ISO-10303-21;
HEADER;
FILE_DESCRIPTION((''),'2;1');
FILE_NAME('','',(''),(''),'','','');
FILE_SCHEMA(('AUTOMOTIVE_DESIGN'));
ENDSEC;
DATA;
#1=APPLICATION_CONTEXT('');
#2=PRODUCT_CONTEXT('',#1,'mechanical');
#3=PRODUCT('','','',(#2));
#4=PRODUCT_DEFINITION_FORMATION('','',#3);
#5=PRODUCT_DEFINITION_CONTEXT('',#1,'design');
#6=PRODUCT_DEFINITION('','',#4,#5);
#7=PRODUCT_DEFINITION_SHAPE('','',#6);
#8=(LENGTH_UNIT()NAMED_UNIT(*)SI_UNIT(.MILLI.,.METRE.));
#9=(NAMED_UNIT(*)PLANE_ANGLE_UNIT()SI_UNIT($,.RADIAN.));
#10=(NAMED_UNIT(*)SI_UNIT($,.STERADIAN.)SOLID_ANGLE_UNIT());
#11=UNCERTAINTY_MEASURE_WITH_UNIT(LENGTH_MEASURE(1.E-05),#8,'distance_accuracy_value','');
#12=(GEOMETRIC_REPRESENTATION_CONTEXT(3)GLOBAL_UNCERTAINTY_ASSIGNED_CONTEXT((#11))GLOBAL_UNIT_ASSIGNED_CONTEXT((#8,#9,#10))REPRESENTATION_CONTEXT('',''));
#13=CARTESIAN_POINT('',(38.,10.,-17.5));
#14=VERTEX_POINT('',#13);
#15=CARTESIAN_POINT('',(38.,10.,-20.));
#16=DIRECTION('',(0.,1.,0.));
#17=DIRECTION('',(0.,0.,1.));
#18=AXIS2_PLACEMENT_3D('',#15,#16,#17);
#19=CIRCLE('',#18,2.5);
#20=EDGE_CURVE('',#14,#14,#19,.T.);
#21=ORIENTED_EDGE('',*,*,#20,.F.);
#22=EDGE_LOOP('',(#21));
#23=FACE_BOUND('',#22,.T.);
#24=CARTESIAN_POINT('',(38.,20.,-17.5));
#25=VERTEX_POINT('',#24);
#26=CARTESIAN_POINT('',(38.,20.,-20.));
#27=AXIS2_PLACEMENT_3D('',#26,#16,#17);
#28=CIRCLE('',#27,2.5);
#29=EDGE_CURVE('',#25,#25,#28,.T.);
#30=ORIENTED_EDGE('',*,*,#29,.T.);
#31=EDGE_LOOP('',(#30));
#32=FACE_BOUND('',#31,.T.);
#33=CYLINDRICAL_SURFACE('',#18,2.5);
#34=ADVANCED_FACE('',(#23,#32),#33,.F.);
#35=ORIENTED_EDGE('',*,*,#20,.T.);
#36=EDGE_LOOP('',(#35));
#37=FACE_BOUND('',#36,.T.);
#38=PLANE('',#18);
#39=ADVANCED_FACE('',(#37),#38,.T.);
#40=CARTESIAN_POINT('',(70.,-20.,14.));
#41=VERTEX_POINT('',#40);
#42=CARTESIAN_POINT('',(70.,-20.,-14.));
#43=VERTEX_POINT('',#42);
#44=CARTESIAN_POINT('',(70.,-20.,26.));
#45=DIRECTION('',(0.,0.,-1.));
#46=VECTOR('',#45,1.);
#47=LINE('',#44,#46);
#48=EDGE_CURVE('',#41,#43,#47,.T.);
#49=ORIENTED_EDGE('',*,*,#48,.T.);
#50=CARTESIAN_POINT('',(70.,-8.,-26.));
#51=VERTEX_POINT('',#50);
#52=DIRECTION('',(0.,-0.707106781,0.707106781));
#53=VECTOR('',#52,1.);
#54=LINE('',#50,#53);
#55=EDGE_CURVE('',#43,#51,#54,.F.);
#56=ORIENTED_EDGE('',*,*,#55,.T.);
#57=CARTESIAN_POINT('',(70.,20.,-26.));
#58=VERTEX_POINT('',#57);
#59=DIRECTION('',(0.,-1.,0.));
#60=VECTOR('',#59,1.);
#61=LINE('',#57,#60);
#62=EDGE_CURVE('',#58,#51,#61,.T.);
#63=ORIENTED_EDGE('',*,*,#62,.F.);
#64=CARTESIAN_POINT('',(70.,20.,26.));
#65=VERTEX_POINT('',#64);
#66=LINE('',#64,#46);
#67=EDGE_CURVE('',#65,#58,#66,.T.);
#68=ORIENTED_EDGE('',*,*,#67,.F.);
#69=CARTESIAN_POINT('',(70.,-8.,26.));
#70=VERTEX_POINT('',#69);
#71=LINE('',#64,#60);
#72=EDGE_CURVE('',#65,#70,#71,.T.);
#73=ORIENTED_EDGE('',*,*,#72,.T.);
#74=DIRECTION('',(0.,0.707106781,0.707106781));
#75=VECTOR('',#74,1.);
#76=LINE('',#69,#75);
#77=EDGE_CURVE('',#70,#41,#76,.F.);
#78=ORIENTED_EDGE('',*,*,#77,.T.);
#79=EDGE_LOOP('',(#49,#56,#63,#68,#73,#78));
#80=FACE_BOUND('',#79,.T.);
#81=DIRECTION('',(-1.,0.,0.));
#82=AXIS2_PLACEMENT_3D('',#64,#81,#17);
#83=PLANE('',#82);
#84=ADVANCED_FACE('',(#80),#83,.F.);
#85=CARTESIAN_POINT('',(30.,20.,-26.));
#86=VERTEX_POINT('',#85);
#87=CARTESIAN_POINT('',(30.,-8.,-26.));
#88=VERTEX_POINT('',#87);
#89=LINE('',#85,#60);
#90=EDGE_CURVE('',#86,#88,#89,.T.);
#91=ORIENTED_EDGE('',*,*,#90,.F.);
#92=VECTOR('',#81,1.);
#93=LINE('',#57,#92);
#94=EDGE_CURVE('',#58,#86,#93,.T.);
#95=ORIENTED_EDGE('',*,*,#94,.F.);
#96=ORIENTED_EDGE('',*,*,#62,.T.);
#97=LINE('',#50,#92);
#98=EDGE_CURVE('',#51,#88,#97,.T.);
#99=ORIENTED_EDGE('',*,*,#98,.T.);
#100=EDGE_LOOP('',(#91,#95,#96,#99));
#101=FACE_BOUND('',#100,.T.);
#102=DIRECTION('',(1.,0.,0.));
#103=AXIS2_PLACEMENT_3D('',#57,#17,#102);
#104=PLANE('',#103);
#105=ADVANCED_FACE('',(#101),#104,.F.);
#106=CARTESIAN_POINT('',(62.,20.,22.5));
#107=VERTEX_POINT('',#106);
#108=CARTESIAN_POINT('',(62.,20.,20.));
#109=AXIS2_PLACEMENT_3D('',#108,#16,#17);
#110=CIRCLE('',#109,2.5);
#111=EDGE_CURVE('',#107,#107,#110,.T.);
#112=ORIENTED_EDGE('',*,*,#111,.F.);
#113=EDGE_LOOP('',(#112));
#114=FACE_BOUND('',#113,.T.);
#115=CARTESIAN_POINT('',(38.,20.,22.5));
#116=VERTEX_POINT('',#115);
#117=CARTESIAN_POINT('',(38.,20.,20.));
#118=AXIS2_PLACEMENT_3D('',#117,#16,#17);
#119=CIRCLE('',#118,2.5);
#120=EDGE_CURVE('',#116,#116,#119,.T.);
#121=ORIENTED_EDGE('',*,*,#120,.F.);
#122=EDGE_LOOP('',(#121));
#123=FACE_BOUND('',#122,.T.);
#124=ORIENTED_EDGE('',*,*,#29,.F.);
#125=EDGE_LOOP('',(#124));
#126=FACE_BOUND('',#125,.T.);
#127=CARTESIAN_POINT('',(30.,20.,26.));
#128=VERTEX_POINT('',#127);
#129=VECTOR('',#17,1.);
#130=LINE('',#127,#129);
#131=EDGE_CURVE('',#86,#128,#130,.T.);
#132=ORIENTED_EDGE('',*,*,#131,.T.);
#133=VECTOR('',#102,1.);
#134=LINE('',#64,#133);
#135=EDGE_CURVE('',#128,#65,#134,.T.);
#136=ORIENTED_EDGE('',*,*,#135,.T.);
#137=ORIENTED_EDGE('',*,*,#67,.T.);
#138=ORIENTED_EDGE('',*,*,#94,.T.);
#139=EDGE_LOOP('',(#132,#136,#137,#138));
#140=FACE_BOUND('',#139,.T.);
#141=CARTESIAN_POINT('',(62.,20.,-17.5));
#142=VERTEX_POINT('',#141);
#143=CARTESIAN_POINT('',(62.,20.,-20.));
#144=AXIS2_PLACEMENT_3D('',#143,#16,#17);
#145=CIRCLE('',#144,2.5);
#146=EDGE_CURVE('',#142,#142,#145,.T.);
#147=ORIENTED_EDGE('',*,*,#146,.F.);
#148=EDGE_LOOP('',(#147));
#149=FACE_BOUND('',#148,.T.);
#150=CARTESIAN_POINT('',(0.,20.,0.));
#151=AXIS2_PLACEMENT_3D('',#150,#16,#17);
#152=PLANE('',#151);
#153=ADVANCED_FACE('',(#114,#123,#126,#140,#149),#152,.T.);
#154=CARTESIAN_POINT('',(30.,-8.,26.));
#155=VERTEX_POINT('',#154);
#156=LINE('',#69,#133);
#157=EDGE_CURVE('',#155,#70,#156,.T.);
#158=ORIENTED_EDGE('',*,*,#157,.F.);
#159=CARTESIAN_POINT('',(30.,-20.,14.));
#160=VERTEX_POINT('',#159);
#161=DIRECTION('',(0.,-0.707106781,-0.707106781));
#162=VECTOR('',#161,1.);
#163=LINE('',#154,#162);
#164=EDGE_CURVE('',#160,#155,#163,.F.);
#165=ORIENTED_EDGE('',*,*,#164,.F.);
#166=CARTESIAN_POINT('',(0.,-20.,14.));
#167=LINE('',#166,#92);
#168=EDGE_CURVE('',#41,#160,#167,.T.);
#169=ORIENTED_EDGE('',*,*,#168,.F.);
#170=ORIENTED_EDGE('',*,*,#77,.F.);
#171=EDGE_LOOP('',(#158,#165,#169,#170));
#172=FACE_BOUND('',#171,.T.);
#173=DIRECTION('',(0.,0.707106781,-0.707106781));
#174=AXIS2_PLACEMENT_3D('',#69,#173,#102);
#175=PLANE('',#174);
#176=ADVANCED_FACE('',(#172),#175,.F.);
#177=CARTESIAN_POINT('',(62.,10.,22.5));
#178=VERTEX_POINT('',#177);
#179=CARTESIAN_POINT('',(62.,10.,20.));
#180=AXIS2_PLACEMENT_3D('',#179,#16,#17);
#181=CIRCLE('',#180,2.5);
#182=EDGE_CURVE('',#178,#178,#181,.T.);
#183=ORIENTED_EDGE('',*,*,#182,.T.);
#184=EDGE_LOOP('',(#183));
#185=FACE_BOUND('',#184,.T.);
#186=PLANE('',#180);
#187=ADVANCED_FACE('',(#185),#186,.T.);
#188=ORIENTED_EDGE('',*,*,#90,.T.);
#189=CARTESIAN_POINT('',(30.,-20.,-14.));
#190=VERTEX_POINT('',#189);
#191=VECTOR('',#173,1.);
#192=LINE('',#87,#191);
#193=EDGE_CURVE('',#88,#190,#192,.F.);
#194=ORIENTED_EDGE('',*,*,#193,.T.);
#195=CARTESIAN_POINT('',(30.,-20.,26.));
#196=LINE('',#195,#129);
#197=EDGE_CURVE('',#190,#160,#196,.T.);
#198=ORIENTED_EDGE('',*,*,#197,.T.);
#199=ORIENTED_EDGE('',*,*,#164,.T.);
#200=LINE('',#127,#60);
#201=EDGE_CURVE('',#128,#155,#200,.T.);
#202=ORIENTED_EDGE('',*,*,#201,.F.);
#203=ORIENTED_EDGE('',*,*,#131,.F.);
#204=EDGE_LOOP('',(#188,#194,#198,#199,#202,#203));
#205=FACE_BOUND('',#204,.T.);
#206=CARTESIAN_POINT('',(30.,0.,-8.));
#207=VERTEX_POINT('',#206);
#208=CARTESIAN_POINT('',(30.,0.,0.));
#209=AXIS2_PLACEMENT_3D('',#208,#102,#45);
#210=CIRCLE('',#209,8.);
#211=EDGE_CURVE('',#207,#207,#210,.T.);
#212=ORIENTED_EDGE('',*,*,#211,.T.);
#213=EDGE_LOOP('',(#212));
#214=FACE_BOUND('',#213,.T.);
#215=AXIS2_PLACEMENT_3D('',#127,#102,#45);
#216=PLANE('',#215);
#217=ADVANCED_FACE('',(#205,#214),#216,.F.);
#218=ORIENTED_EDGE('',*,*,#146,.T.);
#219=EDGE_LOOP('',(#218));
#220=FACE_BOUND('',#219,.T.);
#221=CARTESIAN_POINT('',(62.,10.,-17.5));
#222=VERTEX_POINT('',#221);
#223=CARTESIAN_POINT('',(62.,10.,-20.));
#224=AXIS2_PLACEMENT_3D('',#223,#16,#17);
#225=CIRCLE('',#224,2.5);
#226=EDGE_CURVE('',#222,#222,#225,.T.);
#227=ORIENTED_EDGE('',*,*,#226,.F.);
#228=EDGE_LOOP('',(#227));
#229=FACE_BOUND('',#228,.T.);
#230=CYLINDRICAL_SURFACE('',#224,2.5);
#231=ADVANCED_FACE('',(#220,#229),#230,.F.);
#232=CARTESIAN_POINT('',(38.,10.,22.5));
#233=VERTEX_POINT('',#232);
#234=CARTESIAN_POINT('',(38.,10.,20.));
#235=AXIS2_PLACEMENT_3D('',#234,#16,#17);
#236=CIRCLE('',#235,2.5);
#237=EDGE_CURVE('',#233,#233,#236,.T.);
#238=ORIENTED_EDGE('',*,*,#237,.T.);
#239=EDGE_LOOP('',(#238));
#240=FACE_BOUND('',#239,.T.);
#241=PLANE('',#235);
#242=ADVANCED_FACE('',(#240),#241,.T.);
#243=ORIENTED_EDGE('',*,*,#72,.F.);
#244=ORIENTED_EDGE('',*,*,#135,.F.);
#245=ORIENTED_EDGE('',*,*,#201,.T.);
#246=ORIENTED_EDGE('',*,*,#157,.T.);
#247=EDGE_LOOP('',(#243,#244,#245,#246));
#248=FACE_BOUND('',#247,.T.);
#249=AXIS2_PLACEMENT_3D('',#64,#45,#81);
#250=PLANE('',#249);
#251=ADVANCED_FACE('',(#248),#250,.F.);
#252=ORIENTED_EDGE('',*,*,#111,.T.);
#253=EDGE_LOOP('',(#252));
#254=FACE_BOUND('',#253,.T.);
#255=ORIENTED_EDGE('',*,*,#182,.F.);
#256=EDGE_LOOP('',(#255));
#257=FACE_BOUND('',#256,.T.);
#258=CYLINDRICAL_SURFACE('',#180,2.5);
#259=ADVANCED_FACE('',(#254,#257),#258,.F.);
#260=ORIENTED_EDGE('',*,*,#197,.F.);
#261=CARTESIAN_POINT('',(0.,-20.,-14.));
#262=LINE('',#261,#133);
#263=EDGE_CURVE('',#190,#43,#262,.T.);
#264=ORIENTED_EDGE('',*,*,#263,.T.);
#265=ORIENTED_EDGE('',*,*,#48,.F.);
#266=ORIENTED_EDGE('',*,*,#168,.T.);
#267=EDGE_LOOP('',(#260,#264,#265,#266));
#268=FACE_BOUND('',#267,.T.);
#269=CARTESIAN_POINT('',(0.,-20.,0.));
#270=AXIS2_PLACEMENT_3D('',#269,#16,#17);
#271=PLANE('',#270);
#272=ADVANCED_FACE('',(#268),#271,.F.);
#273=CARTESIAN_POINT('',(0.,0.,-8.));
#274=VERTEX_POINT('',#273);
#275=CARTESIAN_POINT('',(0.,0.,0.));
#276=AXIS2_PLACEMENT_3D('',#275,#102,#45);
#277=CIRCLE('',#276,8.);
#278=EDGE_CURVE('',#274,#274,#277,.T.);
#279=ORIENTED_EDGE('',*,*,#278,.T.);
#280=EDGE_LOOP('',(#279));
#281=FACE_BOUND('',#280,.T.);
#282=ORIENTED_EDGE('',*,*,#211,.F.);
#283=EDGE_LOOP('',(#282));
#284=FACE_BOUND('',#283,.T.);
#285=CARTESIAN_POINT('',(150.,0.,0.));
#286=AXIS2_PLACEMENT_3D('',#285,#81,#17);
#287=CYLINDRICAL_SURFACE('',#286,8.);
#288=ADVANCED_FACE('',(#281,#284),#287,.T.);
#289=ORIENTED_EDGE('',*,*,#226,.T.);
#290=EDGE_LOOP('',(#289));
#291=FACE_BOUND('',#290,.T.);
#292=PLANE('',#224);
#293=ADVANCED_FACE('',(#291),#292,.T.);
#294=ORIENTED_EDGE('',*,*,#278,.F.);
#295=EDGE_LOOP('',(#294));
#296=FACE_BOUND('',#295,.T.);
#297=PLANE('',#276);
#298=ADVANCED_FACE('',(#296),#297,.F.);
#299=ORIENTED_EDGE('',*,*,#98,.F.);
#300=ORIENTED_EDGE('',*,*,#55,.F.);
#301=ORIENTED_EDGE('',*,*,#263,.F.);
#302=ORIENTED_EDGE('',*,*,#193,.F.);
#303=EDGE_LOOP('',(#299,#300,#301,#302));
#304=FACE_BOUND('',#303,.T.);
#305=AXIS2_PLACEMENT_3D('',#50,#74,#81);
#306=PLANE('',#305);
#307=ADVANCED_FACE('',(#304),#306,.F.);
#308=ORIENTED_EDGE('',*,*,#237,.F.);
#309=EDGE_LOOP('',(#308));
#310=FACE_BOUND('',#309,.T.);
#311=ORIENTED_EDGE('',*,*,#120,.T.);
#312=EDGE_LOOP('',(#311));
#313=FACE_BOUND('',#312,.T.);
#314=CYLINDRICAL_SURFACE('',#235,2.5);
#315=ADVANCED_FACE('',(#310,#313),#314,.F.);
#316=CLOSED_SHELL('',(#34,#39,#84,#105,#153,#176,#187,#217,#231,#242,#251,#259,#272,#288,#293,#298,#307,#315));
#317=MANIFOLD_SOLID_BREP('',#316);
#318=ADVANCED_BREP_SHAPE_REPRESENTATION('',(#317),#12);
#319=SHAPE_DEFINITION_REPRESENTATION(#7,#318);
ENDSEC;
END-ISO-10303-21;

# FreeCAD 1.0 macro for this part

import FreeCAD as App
import Part
import Sketcher
Q = App.Units.Quantity


def edges_at(feature, points):
    """Names of the edges that pass closest to the given points."""
    edges = feature.Shape.Edges
    near = lambda p: min(range(len(edges)), key=lambda i: edges[i].distToShape(Part.Vertex(*p))[0])
    return sorted({f"Edge{near(p) + 1}" for p in points})


def add_polygon(sketch, points):
    """Adds a closed chain of lines whose ends are joined by coincident constraints."""
    first, n = sketch.GeometryCount, len(points)
    for a, b in zip(points, points[1:] + points[:1]):
        sketch.addGeometry(Part.LineSegment(App.Vector(*a, 0), App.Vector(*b, 0)), False)
    for i in range(n):
        sketch.addConstraint(Sketcher.Constraint("Coincident", first + i, 2, first + (i + 1) % n, 1))

doc = App.newDocument("Part")
body = doc.addObject("PartDesign::Body", "Body")

# Sketch on YZ plane
sketch1 = doc.addObject("Sketcher::SketchObject", "Sketch")
body.addObject(sketch1)
sketch1.AttachmentSupport = (doc.YZ_Plane, [""])
sketch1.MapMode = "FlatFace"
sketch1.addGeometry(Part.Circle(App.Vector(0, 0, 0), App.Vector(0, 0, 1), 8), False)
sketch1.addConstraint(Sketcher.Constraint("Coincident", 0, 3, -1, 1))
sketch1.addConstraint(Sketcher.Constraint("Diameter", 0, Q("16 mm")))
pad1 = doc.addObject("PartDesign::Pad", "Pad")
body.addObject(pad1)
pad1.Profile = sketch1
pad1.Length = 150

# Sketch on XZ plane
sketch2 = doc.addObject("Sketcher::SketchObject", "Sketch001")
body.addObject(sketch2)
sketch2.AttachmentSupport = (doc.XZ_Plane, [""])
sketch2.MapMode = "FlatFace"
add_polygon(sketch2, [(30, -26), (30, 26), (70, 26), (70, -26)])  # lines 0-3
sketch2.addConstraint(Sketcher.Constraint("Vertical", 0))
sketch2.addConstraint(Sketcher.Constraint("Horizontal", 1))
sketch2.addConstraint(Sketcher.Constraint("Vertical", 2))
sketch2.addConstraint(Sketcher.Constraint("Horizontal", 3))
sketch2.addConstraint(Sketcher.Constraint("DistanceX", 1, 1, 1, 2, Q("40 mm")))
sketch2.addConstraint(Sketcher.Constraint("DistanceY", 0, 1, 0, 2, Q("52 mm")))
sketch2.addConstraint(Sketcher.Constraint("DistanceX", -1, 1, 0, 2, Q("30 mm")))
sketch2.addConstraint(Sketcher.Constraint("DistanceY", -1, 1, 0, 2, Q("26 mm")))
pad2 = doc.addObject("PartDesign::Pad", "Pad001")
body.addObject(pad2)
pad2.Profile = sketch2
pad2.Length = 40
pad2.Midplane = True
doc.recompute()

chamfer = doc.addObject("PartDesign::Chamfer", "Chamfer")
body.addObject(chamfer)
chamfer.Base = (pad2, edges_at(pad2, [(50, -20, 26), (50, -20, -26)]))
chamfer.Size = 12

# Sketch on XZ plane
sketch3 = doc.addObject("Sketcher::SketchObject", "Sketch002")
body.addObject(sketch3)
sketch3.AttachmentSupport = (doc.XZ_Plane, [""])
sketch3.MapMode = "FlatFace"
sketch3.AttachmentOffset = App.Placement(App.Vector(0, 0, -20), App.Rotation())
sketch3.addGeometry(Part.Circle(App.Vector(38, -20, 0), App.Vector(0, 0, 1), 2.5), False)
sketch3.addGeometry(Part.Circle(App.Vector(62, -20, 0), App.Vector(0, 0, 1), 2.5), False)
sketch3.addGeometry(Part.Circle(App.Vector(38, 20, 0), App.Vector(0, 0, 1), 2.5), False)
sketch3.addGeometry(Part.Circle(App.Vector(62, 20, 0), App.Vector(0, 0, 1), 2.5), False)
sketch3.addConstraint(Sketcher.Constraint("Equal", 0, 1))
sketch3.addConstraint(Sketcher.Constraint("Equal", 1, 2))
sketch3.addConstraint(Sketcher.Constraint("Equal", 2, 3))
sketch3.addConstraint(Sketcher.Constraint("Symmetric", 0, 3, 2, 3, -1))
sketch3.addConstraint(Sketcher.Constraint("Symmetric", 1, 3, 3, 3, -1))
sketch3.addConstraint(Sketcher.Constraint("Horizontal", 0, 3, 1, 3))
sketch3.addConstraint(Sketcher.Constraint("Diameter", 0, Q("5 mm")))
sketch3.addConstraint(Sketcher.Constraint("DistanceX", -1, 1, 0, 3, Q("38 mm")))
sketch3.addConstraint(Sketcher.Constraint("DistanceY", 0, 3, -1, 1, Q("20 mm")))
sketch3.addConstraint(Sketcher.Constraint("DistanceX", -1, 1, 1, 3, Q("62 mm")))
pocket1 = doc.addObject("PartDesign::Pocket", "Pocket")
body.addObject(pocket1)
pocket1.Profile = sketch3
pocket1.Length = 10
pocket1.Reversed = True

# Sketch on XZ plane
sketch4 = doc.addObject("Sketcher::SketchObject", "Sketch003")
body.addObject(sketch4)
sketch4.AttachmentSupport = (doc.XZ_Plane, [""])
sketch4.MapMode = "FlatFace"
sketch4.AttachmentOffset = App.Placement(App.Vector(0, 0, -20), App.Rotation())
add_polygon(sketch4, [(70, -34), (70, 72), (150, 72), (150, -34)])  # lines 0-3
sketch4.addConstraint(Sketcher.Constraint("Vertical", 0))
sketch4.addConstraint(Sketcher.Constraint("Horizontal", 1))
sketch4.addConstraint(Sketcher.Constraint("Vertical", 2))
sketch4.addConstraint(Sketcher.Constraint("Horizontal", 3))
sketch4.addConstraint(Sketcher.Constraint("DistanceX", -1, 1, 0, 2, Q("70 mm")))
sketch4.addConstraint(Sketcher.Constraint("DistanceX", 1, 1, 1, 2, Q("80.35141 mm")))
sketch4.addConstraint(Sketcher.Constraint("DistanceY", 0, 1, 0, 2, Q("105.979848 mm")))
sketch4.addConstraint(Sketcher.Constraint("DistanceY", -1, 1, 0, 2, Q("71.877161 mm")))
pocket2 = doc.addObject("PartDesign::Pocket", "Pocket001")
body.addObject(pocket2)
pocket2.Profile = sketch4
pocket2.Type = "ThroughAll"
pocket2.Reversed = True

doc.recompute()
